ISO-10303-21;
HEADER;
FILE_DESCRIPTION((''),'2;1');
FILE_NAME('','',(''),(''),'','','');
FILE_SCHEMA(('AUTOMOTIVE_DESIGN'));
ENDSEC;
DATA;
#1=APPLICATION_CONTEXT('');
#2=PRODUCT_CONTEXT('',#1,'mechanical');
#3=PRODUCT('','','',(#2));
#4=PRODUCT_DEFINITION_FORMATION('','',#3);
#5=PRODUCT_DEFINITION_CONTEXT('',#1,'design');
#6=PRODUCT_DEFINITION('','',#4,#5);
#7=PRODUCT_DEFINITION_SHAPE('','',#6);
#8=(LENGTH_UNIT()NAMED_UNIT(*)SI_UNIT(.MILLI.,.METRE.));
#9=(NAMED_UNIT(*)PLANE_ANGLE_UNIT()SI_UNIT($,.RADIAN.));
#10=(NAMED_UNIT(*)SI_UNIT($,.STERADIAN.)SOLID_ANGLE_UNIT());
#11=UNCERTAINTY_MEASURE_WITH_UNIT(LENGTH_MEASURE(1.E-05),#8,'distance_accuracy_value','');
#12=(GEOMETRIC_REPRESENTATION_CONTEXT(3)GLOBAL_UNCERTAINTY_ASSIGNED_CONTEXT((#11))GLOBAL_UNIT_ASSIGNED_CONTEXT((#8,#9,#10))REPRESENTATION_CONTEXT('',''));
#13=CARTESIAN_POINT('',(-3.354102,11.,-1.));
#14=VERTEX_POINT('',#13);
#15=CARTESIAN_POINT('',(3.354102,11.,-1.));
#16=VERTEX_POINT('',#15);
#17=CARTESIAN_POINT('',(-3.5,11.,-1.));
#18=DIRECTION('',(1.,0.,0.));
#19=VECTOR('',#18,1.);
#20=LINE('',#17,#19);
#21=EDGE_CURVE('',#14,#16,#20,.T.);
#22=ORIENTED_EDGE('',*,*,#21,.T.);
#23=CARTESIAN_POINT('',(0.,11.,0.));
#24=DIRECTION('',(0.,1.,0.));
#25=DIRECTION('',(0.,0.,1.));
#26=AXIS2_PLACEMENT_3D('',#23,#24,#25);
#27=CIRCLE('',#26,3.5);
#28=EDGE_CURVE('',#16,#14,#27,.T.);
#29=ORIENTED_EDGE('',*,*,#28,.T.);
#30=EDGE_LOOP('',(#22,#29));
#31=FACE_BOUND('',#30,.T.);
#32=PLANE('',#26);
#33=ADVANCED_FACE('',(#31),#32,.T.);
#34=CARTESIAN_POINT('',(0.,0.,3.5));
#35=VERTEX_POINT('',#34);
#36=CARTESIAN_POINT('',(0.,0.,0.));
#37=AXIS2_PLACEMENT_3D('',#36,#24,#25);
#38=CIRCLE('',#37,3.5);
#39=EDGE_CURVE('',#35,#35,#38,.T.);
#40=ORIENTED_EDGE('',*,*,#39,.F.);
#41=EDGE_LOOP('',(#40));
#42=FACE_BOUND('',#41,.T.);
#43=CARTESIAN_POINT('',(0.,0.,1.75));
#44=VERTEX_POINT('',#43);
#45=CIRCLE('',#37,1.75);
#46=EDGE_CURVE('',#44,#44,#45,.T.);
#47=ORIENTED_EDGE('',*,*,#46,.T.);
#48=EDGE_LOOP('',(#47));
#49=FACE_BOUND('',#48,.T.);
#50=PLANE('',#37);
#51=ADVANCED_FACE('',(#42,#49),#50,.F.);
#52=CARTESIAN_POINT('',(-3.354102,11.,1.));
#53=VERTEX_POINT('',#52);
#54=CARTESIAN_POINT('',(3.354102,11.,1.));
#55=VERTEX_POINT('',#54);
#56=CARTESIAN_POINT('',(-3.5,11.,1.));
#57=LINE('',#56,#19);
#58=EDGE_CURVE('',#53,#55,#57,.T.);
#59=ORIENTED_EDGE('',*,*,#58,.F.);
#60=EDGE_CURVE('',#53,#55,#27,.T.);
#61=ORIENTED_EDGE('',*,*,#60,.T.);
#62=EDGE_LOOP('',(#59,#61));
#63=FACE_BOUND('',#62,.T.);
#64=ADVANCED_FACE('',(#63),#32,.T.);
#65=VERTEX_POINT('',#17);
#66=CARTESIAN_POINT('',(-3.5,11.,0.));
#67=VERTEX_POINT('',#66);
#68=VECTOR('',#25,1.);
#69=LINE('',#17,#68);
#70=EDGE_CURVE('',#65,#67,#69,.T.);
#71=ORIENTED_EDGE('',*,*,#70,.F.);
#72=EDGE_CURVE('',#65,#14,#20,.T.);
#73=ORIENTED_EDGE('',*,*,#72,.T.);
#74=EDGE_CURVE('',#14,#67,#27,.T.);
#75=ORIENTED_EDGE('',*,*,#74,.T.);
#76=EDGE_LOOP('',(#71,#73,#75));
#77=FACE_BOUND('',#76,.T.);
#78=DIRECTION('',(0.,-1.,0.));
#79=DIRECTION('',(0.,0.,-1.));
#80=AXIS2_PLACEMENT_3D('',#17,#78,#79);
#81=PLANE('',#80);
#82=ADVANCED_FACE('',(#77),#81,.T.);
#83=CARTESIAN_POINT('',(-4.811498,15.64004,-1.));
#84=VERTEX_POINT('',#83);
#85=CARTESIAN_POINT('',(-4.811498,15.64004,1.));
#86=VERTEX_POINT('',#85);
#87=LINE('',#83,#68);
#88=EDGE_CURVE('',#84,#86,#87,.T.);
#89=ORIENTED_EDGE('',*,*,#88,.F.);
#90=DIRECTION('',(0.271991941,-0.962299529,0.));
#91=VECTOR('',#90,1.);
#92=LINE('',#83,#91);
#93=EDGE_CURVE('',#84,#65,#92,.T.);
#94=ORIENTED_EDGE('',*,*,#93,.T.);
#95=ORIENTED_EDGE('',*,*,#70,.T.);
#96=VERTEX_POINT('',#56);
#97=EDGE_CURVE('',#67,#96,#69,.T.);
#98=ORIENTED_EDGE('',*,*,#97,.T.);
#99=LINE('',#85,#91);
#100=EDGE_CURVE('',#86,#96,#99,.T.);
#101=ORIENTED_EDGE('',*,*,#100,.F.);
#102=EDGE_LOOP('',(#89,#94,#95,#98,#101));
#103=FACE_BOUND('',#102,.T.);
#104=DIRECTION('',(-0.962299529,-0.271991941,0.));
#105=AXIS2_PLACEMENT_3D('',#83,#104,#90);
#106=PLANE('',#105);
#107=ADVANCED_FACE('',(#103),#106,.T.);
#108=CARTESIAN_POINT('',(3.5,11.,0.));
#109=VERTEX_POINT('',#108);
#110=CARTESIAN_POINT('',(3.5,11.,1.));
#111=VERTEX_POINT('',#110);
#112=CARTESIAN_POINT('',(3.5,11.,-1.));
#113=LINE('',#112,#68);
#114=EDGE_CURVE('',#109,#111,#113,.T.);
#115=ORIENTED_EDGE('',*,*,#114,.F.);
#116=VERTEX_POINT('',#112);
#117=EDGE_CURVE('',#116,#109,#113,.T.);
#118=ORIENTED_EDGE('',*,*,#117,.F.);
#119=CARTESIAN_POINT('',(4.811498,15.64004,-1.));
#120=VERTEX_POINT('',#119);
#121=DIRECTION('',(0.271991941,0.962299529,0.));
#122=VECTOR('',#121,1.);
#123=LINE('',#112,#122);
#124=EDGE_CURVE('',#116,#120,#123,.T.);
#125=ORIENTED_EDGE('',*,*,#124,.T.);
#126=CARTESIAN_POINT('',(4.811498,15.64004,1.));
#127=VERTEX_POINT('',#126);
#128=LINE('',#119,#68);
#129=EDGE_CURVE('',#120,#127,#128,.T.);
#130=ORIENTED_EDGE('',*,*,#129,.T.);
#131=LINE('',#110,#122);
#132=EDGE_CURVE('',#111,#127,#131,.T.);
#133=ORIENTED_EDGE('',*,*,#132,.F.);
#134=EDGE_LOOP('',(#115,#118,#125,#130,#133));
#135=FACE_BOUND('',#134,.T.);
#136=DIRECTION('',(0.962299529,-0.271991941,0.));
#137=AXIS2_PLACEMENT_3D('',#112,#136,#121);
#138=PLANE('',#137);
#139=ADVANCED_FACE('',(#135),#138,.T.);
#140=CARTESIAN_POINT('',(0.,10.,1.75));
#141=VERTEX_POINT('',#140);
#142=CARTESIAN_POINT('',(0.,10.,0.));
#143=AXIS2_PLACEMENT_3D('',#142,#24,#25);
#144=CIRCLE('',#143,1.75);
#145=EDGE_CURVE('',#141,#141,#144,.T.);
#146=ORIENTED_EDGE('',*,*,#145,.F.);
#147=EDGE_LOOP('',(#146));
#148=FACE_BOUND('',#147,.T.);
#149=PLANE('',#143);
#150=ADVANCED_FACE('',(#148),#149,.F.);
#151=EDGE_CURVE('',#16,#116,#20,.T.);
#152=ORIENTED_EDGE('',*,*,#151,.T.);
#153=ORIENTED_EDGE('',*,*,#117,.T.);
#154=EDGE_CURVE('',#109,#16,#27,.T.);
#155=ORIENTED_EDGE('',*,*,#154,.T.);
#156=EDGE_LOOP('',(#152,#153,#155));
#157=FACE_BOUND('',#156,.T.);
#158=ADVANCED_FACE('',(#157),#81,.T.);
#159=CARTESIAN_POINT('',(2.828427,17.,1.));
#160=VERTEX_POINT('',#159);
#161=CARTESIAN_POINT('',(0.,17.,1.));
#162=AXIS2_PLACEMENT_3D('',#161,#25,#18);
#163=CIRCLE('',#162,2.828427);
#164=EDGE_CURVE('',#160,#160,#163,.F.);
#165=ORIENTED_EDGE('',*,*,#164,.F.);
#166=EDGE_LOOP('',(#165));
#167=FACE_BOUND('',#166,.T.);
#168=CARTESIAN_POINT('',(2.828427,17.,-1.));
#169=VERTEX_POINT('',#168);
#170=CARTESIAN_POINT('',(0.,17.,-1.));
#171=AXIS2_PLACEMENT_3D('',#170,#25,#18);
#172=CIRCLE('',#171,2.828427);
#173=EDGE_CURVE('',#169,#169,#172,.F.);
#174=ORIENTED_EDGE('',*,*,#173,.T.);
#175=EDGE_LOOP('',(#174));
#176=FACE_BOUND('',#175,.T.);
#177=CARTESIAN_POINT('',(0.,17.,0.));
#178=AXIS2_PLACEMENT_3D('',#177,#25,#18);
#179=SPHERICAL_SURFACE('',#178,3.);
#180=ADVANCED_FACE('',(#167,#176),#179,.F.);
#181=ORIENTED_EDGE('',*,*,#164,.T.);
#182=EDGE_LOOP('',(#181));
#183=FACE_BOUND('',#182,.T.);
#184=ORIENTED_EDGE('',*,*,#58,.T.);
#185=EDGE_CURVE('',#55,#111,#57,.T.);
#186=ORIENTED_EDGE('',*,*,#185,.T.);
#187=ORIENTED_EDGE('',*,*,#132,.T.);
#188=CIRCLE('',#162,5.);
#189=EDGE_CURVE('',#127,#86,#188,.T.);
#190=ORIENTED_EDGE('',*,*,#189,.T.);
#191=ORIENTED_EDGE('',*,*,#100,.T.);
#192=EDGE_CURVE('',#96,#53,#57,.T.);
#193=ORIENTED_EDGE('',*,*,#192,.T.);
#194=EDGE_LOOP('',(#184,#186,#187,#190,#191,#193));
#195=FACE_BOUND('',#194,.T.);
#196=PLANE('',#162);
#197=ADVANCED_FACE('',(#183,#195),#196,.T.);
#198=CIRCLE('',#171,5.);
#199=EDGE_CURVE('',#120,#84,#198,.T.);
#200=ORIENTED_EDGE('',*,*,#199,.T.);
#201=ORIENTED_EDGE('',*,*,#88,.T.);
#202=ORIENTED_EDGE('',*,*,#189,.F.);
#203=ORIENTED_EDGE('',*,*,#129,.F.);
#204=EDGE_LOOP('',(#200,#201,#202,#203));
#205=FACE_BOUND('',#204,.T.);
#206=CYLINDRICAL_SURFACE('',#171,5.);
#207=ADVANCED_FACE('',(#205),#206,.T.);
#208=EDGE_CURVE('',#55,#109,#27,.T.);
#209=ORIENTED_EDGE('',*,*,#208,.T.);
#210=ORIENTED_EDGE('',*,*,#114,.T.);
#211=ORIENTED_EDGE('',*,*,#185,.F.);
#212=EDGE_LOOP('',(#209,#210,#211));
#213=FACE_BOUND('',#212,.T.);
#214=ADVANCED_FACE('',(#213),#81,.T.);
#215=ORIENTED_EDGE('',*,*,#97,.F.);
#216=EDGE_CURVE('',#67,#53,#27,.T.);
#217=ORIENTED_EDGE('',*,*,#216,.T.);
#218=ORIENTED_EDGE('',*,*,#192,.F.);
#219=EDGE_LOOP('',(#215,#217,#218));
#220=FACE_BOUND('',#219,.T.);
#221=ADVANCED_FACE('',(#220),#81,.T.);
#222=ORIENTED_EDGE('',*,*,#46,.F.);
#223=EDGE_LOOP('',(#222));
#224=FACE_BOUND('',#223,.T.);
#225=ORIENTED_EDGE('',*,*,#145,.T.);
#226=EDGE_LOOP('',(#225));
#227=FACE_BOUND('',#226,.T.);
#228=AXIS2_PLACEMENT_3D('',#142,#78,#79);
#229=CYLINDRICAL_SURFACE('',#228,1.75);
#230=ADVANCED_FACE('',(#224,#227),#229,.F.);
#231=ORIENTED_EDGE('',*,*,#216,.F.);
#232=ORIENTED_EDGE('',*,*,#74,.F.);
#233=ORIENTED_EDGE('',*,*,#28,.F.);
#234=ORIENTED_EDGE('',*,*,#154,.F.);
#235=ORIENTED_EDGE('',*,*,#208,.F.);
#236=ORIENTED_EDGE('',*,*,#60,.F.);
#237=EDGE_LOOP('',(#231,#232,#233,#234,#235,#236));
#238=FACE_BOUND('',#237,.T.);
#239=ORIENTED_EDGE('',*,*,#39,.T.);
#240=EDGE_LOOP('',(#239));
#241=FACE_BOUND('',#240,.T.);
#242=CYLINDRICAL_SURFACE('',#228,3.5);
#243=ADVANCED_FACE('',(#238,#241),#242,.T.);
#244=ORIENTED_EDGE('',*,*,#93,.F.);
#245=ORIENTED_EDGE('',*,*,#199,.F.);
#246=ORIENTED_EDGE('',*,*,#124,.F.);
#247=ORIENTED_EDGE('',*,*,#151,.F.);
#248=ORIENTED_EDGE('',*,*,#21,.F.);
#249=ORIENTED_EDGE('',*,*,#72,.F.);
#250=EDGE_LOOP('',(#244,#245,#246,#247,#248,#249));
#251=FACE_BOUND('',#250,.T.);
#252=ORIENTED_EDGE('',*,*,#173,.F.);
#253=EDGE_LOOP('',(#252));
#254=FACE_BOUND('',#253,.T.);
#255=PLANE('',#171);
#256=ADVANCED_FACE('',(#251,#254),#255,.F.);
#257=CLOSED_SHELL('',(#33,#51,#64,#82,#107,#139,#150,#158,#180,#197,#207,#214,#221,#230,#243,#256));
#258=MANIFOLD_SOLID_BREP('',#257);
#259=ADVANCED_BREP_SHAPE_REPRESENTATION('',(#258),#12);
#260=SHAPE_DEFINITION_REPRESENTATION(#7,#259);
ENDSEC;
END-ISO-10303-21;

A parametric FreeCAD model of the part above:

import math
import FreeCAD as App
import Part
import Sketcher
from FreeCAD import Vector
Q = App.Units.Quantity

doc = App.newDocument("Part")
params = doc.addObject("Spreadsheet::Sheet", "Params")
for row, (alias, value) in enumerate([
    ("sketch1_diameter", "7 mm"),
    ("sketch1_diameter2", "3.5 mm"),
    ("pad1_length", "10 mm"),
    ("sketch2_diameter", "7 mm"),
    ("pad2_length", "1 mm"),
    ("sketch3_radius", "5 mm"),
    ("sketch3_width", "7 mm"),
    ("pad3_length", "1 mm"),
    ("pad3_length2", "1 mm"),
    ("sketch4_radius", "3 mm"),
    ("groove_angle", "360 deg"),
], start=1):
    params.set(f"A{row}", alias)
    params.set(f"B{row}", "=" + value)
    params.setAlias(f"B{row}", alias)

body = doc.addObject("PartDesign::Body", "Body")

sketch1 = body.newObject("Sketcher::SketchObject", "Sketch")
sketch1.AttachmentSupport = (doc.getObject("XZ_Plane"), [""])
sketch1.MapMode = "FlatFace"
sketch1.addGeometry([
    Part.Circle(Vector(0, 0, 0), Vector(0, 0, 1), 3.5),
    Part.Circle(Vector(0, 0, 0), Vector(0, 0, 1), 1.8),
], False)
sketch1.addConstraint([
    Sketcher.Constraint("Coincident", 0, 3, -1, 1),
    Sketcher.Constraint("Coincident", 1, 3, -1, 1),
    Sketcher.Constraint("Diameter", 0, Q("7 mm")),
    Sketcher.Constraint("Diameter", 1, Q("3.5 mm")),
])
sketch1.setExpression("Constraints[2]", "Params.sketch1_diameter")
sketch1.setExpression("Constraints[3]", "Params.sketch1_diameter2")
pad1 = body.newObject("PartDesign::Pad", "Pad")
pad1.Profile = sketch1
pad1.setExpression("Length", "Params.pad1_length")
pad1.Reversed = True

sketch2 = body.newObject("Sketcher::SketchObject", "Sketch001")
sketch2.AttachmentSupport = (doc.getObject("XZ_Plane"), [""])
sketch2.MapMode = "FlatFace"
sketch2.AttachmentOffset = App.Placement(Vector(0, 0, -10), App.Rotation())
sketch2.addGeometry(Part.Circle(Vector(0, 0, 0), Vector(0, 0, 1), 3.5), False)
sketch2.addConstraint([
    Sketcher.Constraint("Coincident", 0, 3, -1, 1),
    Sketcher.Constraint("Diameter", 0, Q("7 mm")),
])
sketch2.setExpression("Constraints[1]", "Params.sketch2_diameter")
pad2 = body.newObject("PartDesign::Pad", "Pad001")
pad2.Profile = sketch2
pad2.setExpression("Length", "Params.pad2_length")
pad2.Reversed = True

sketch3 = body.newObject("Sketcher::SketchObject", "Sketch002")
sketch3.AttachmentSupport = (doc.getObject("XY_Plane"), [""])
sketch3.MapMode = "FlatFace"
sketch3.addGeometry([
    Part.LineSegment(Vector(-4.8, 15.6, 0), Vector(-3.5, 11, 0)),
    Part.LineSegment(Vector(-3.5, 11, 0), Vector(3.5, 11, 0)),
    Part.LineSegment(Vector(3.5, 11, 0), Vector(4.8, 15.6, 0)),
    Part.ArcOfCircle(Part.Circle(Vector(0, 17, 0), Vector(0, 0, 1), 5), math.radians(-16), math.radians(196)),
], False)
sketch3.addConstraint([
    Sketcher.Constraint("Coincident", 0, 2, 1, 1),
    Sketcher.Constraint("Coincident", 1, 2, 2, 1),
    Sketcher.Constraint("Tangent", 2, 2, 3, 1),
    Sketcher.Constraint("Tangent", 3, 2, 0, 1),
    Sketcher.Constraint("Horizontal", 1),
    Sketcher.Constraint("Symmetric", 2, 2, 3, 2, -2),
    Sketcher.Constraint("Radius", 3, Q("5 mm")),
    Sketcher.Constraint("DistanceX", 1, 1, 1, 2, Q("7 mm")),
    Sketcher.Constraint("DistanceY", -1, 1, 3, 3, Q("17 mm")),
    Sketcher.Constraint("DistanceY", -1, 1, 0, 2, Q("11 mm")),
])
sketch3.setExpression("Constraints[6]", "Params.sketch3_radius")
sketch3.setExpression("Constraints[7]", "Params.sketch3_width")
pad3 = body.newObject("PartDesign::Pad", "Pad002")
pad3.Profile = sketch3
pad3.Type = "TwoLengths"
pad3.setExpression("Length", "Params.pad3_length")
pad3.setExpression("Length2", "Params.pad3_length2")

sketch4 = body.newObject("Sketcher::SketchObject", "Sketch003")
sketch4.AttachmentSupport = (doc.getObject("XY_Plane"), [""])
sketch4.MapMode = "FlatFace"
sketch4.addGeometry([
    Part.LineSegment(Vector(0, 20, 0), Vector(0, 14, 0)),
    Part.ArcOfCircle(Part.Circle(Vector(0, 17, 0), Vector(0, 0, 1), 3), math.radians(-90), math.radians(90)),
], False)
sketch4.addConstraint([
    Sketcher.Constraint("Coincident", 0, 1, 1, 2),
    Sketcher.Constraint("Coincident", 1, 1, 0, 2),
    Sketcher.Constraint("Vertical", 0),
    Sketcher.Constraint("PointOnObject", 1, 3, -2),
    Sketcher.Constraint("PointOnObject", 0, 1, -2),
    Sketcher.Constraint("Radius", 1, Q("3 mm")),
    Sketcher.Constraint("DistanceY", -1, 1, 1, 3, Q("17 mm")),
])
sketch4.setExpression("Constraints[5]", "Params.sketch4_radius")
groove = body.newObject("PartDesign::Groove", "Groove")
groove.Profile = sketch4
groove.ReferenceAxis = (sketch4, ["V_Axis"])
groove.setExpression("Angle", "Params.groove_angle")

doc.recompute()
